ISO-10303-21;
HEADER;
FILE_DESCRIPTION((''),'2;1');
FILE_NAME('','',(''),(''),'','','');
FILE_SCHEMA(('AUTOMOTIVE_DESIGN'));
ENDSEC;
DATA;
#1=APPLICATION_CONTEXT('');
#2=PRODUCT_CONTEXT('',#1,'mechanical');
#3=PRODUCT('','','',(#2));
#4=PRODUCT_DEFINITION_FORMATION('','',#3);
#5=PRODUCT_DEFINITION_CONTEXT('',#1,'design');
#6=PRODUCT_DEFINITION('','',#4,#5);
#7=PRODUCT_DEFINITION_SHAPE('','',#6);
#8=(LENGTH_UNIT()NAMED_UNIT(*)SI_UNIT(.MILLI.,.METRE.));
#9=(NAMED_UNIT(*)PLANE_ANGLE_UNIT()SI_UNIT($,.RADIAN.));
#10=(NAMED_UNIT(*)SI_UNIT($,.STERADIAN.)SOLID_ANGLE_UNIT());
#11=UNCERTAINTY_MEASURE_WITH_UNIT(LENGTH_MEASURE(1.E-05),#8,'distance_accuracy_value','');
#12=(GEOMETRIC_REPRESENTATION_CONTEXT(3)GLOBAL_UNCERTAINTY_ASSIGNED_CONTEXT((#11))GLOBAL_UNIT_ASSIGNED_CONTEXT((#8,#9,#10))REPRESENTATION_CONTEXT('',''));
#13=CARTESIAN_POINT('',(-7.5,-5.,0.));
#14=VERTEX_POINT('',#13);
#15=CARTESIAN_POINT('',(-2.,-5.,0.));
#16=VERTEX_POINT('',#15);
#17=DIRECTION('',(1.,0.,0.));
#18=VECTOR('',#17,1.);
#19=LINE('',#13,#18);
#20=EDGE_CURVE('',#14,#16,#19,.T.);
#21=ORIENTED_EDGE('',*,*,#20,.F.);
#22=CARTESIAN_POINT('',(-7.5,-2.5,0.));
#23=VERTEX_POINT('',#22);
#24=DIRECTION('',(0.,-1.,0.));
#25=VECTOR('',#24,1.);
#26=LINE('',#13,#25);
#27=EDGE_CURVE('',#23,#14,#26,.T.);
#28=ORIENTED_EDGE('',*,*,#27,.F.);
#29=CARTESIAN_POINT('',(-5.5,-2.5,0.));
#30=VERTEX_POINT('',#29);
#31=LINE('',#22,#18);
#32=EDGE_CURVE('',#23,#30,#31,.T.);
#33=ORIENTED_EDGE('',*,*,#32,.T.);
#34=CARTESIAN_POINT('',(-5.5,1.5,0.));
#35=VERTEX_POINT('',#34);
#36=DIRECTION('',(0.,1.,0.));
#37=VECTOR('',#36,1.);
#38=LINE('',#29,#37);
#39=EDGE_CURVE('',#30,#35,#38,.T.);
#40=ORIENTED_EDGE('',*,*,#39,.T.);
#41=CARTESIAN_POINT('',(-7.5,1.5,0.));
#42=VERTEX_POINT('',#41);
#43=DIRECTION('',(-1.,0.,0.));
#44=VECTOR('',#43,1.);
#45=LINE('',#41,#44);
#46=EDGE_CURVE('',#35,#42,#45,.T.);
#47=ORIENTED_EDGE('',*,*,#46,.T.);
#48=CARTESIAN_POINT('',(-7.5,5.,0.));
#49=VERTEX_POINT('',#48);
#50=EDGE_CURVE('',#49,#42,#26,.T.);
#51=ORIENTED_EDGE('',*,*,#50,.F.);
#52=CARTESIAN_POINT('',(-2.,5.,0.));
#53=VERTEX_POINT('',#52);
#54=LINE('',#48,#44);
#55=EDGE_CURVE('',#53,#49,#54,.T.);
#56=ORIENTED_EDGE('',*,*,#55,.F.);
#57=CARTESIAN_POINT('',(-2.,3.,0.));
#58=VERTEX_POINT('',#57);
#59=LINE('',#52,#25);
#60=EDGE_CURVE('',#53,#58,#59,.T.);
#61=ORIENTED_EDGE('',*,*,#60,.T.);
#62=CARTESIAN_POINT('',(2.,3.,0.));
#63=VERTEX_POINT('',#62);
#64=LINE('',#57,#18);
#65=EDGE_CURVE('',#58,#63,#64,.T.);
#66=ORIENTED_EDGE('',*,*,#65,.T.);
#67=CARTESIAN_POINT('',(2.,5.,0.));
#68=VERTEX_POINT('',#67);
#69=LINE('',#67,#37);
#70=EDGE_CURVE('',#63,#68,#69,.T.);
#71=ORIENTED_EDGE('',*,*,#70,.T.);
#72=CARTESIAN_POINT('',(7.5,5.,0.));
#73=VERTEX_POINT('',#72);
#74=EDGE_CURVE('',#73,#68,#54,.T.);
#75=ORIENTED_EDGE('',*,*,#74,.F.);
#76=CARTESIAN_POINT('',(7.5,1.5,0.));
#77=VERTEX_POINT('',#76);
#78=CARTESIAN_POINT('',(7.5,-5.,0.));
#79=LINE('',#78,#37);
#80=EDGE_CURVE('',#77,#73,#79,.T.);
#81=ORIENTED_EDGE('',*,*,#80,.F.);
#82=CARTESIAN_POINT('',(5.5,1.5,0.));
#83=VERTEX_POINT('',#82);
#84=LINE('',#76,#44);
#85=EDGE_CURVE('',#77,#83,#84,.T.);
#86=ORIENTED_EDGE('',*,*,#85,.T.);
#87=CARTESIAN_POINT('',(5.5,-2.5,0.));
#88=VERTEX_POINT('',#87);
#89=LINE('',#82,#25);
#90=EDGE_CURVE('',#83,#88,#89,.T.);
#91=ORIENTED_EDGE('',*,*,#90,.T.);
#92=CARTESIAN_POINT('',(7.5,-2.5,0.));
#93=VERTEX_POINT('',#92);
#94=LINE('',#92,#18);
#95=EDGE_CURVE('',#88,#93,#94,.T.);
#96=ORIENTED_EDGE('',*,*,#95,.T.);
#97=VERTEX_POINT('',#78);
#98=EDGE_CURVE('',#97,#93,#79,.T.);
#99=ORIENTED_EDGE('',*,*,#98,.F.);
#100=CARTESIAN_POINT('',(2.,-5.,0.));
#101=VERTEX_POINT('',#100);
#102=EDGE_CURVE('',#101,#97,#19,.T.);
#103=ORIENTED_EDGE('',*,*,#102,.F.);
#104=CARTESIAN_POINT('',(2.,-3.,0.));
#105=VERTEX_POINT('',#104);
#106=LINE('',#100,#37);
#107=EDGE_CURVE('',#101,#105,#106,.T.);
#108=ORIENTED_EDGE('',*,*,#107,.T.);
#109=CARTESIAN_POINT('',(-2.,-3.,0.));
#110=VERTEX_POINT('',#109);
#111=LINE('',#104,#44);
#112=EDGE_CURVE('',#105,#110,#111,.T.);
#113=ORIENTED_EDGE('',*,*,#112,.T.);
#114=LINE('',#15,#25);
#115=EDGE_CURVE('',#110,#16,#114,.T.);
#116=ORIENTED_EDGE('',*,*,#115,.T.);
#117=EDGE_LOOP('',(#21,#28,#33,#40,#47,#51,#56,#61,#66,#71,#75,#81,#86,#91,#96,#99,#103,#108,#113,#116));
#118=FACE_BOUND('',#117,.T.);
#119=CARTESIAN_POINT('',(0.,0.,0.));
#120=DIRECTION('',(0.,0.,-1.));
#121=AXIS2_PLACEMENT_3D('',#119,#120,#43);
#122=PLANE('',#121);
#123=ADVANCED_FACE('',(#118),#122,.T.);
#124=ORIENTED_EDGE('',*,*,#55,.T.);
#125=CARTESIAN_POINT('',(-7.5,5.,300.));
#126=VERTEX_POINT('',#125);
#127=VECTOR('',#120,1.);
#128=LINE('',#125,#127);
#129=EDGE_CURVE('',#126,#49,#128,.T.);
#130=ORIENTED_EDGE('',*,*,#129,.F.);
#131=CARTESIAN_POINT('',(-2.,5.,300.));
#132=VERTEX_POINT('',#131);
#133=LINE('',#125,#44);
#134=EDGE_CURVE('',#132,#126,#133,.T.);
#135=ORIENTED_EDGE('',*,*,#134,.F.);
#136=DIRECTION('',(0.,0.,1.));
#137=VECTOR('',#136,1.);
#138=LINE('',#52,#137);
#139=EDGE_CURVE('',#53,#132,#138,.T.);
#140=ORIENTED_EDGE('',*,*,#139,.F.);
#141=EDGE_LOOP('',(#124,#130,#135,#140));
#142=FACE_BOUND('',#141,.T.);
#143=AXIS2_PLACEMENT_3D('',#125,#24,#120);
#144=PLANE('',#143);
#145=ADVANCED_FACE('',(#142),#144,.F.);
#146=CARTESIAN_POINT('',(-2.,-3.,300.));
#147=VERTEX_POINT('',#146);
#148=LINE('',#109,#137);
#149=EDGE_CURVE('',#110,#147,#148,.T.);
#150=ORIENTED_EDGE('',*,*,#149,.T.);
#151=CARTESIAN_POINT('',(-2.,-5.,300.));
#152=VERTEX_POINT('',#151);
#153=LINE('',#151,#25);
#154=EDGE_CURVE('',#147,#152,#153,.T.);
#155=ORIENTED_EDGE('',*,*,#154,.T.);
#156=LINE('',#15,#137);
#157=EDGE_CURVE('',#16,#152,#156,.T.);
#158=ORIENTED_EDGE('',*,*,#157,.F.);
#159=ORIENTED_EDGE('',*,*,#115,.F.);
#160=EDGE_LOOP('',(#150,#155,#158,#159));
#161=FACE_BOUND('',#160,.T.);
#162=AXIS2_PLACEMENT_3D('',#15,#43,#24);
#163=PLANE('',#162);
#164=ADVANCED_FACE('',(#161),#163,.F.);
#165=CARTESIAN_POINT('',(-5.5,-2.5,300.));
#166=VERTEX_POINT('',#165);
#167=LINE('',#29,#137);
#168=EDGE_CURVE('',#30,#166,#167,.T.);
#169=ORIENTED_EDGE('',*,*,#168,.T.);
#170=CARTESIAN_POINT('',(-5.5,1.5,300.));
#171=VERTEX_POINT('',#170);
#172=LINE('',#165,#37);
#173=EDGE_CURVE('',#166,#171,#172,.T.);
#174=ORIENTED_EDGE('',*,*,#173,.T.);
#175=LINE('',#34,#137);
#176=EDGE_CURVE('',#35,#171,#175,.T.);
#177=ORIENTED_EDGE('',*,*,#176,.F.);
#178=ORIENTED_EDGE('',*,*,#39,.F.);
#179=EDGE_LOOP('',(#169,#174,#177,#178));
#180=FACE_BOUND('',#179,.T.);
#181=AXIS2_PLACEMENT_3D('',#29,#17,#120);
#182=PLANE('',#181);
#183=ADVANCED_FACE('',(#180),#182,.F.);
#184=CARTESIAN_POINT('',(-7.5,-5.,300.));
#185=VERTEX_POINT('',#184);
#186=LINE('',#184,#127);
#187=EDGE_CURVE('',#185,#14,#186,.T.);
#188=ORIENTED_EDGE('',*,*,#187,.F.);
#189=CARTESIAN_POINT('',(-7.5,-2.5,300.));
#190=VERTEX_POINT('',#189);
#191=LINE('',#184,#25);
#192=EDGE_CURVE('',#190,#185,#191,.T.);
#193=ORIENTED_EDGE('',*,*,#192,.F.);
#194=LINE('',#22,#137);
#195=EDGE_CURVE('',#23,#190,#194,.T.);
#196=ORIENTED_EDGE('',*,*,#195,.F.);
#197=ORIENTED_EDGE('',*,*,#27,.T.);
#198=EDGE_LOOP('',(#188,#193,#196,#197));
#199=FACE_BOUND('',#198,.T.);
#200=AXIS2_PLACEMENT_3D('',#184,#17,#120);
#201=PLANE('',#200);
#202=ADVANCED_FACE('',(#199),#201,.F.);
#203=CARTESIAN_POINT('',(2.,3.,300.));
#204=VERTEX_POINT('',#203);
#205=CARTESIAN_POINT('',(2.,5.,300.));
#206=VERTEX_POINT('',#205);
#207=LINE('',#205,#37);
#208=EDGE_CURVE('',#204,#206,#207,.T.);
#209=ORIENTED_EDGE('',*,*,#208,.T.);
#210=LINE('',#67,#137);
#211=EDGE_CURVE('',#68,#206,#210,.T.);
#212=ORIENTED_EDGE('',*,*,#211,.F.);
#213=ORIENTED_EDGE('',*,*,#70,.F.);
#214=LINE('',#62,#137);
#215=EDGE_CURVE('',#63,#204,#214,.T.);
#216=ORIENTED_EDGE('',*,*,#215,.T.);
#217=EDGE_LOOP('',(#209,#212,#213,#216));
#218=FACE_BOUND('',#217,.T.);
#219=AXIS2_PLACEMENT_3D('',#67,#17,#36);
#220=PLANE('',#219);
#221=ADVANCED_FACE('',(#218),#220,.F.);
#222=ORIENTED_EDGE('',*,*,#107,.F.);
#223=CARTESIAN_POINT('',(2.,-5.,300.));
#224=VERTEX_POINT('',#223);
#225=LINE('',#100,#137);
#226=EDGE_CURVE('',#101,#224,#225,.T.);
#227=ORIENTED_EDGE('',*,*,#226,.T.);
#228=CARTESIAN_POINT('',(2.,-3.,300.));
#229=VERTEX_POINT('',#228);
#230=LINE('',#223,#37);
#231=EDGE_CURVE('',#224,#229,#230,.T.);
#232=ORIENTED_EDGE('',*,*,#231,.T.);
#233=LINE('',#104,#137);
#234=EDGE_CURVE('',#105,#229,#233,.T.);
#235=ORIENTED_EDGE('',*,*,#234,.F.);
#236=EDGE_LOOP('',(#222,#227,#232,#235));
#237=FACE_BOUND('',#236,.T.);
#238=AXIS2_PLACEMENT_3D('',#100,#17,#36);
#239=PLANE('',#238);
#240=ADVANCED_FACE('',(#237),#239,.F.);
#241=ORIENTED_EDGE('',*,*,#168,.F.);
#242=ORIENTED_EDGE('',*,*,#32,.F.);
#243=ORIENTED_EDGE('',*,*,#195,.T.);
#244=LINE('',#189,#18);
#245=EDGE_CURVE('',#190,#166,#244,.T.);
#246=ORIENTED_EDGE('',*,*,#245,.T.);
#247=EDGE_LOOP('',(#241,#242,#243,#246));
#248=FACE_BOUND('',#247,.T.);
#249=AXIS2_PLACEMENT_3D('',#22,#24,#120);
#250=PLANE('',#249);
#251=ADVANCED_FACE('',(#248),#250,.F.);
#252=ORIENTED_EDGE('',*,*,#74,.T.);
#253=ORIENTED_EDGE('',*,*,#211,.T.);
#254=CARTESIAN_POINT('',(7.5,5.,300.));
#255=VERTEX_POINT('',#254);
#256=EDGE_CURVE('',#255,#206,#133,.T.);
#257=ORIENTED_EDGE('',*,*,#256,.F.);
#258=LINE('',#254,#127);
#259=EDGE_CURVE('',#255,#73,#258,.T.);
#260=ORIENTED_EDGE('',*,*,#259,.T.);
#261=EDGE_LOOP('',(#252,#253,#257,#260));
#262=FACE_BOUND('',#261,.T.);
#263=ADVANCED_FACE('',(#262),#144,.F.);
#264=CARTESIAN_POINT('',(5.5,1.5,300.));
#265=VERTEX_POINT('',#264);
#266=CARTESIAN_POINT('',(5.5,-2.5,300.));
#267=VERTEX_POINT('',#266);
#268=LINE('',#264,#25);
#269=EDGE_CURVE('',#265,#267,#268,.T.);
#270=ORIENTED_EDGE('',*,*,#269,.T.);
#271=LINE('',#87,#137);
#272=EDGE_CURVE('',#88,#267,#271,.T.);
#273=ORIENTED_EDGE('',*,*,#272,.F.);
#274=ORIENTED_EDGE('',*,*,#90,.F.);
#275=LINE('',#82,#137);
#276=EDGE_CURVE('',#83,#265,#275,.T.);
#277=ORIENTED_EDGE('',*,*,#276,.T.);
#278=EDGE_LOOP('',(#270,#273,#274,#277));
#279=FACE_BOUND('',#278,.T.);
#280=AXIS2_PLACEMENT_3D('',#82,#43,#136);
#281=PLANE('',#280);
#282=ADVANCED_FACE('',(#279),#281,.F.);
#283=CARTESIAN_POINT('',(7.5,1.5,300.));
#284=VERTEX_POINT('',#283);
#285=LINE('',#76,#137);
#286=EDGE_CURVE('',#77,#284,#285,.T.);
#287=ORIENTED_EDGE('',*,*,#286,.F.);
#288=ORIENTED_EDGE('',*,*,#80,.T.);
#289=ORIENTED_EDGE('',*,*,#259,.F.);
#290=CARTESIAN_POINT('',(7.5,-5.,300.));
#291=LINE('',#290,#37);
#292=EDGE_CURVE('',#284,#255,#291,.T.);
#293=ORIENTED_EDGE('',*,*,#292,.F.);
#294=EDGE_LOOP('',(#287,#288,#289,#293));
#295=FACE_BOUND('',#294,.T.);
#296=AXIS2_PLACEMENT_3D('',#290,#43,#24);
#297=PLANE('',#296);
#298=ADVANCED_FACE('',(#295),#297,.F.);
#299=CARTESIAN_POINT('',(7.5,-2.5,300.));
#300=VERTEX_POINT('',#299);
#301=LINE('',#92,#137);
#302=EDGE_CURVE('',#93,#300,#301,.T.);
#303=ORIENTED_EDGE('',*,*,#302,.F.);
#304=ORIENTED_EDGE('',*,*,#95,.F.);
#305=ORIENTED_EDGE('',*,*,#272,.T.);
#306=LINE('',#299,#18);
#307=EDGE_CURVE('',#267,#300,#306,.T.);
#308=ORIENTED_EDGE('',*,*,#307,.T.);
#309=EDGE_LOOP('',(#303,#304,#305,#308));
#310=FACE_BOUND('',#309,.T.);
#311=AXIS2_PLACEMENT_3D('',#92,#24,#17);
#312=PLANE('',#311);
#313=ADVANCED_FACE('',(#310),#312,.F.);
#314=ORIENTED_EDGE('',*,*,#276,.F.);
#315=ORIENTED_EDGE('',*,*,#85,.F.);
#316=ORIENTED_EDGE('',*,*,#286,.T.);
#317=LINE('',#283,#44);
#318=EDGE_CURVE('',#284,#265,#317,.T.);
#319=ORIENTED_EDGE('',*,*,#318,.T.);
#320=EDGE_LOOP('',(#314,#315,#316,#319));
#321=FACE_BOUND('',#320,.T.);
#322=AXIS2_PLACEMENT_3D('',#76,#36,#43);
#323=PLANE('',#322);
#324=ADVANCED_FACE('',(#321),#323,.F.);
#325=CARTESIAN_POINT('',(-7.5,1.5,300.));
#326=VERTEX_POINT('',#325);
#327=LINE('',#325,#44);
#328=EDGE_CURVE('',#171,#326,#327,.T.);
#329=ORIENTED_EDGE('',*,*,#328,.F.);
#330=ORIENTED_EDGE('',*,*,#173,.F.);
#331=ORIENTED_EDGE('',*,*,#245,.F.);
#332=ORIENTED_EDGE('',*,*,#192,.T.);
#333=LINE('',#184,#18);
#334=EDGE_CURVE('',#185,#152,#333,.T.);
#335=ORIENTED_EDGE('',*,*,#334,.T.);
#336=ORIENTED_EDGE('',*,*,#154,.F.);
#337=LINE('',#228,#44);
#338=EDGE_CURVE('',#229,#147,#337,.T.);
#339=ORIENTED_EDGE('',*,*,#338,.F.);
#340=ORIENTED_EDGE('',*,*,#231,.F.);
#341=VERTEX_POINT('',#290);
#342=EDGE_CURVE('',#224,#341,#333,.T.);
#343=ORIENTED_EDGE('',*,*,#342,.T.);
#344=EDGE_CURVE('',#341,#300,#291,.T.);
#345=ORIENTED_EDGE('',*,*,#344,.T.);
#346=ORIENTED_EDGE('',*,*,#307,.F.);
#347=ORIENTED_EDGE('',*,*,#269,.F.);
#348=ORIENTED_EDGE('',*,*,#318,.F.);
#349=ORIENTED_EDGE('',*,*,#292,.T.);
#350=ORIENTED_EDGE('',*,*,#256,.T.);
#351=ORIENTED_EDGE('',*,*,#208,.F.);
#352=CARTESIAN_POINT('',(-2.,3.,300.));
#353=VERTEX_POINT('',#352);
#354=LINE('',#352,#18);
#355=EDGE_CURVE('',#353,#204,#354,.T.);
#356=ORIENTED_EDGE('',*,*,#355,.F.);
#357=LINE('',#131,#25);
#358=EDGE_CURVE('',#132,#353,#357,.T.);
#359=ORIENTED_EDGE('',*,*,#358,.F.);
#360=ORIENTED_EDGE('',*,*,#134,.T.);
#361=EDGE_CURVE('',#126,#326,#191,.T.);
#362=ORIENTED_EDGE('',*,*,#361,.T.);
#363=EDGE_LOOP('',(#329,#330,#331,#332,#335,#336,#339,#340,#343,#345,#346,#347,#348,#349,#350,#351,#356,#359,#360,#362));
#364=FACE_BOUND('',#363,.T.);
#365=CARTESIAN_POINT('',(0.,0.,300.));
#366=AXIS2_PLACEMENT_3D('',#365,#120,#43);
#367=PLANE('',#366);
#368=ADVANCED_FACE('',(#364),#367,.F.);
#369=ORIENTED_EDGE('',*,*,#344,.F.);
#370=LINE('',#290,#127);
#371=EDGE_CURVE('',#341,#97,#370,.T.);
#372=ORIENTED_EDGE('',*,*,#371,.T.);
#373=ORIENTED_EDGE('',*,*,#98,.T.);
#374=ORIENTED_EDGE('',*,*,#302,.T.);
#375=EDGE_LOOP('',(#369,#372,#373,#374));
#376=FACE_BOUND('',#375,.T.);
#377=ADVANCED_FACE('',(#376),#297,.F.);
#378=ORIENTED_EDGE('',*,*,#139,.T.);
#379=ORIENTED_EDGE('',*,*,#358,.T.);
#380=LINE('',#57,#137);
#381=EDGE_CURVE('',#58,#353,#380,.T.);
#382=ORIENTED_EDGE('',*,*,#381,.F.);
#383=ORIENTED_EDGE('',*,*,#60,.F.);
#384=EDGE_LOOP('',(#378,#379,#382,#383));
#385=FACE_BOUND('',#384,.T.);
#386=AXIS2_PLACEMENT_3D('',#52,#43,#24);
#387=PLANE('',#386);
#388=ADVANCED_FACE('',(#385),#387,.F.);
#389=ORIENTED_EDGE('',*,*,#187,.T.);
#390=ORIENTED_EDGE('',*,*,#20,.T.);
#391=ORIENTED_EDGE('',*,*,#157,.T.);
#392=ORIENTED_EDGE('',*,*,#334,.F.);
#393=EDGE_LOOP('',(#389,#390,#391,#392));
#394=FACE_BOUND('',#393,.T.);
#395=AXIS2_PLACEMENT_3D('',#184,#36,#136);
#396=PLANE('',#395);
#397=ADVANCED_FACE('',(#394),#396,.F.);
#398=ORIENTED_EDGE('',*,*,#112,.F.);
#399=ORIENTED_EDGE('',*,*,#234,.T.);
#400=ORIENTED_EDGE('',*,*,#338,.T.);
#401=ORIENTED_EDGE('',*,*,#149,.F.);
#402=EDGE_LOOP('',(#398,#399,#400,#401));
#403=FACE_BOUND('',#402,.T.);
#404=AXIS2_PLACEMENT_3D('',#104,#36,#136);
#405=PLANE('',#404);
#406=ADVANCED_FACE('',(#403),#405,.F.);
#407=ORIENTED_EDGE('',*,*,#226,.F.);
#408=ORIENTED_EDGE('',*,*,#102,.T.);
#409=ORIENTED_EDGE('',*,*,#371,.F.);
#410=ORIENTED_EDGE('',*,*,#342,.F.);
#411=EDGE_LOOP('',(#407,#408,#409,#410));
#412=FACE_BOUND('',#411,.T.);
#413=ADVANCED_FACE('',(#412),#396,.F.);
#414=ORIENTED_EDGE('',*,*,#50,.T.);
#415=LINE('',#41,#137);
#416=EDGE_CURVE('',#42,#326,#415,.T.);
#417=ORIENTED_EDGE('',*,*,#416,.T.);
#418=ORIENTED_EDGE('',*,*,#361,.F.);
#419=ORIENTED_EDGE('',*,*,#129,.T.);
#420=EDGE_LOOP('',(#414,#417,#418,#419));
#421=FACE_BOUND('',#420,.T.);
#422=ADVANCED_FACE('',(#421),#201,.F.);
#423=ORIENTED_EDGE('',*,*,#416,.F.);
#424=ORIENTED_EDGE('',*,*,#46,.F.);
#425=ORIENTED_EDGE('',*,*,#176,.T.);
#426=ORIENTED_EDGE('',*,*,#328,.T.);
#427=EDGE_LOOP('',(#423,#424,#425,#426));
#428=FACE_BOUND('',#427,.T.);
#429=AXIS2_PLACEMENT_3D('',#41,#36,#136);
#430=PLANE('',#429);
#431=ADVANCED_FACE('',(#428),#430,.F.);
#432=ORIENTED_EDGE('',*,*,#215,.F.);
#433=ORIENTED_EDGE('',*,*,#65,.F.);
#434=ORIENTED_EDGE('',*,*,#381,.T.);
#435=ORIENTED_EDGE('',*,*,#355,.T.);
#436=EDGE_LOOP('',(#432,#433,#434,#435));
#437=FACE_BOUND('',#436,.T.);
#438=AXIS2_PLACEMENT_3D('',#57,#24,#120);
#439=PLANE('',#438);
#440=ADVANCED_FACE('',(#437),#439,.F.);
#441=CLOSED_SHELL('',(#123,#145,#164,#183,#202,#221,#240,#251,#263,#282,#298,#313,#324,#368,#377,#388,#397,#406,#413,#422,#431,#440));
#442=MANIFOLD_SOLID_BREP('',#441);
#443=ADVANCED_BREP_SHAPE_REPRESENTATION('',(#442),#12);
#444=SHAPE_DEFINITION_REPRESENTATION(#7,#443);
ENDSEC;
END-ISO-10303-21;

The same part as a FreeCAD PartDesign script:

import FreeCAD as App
import Part
import Sketcher


def add_polygon(sketch, points):
    """Adds a closed chain of lines whose ends are joined by coincident constraints."""
    first, n = sketch.GeometryCount, len(points)
    for a, b in zip(points, points[1:] + points[:1]):
        sketch.addGeometry(Part.LineSegment(App.Vector(*a, 0), App.Vector(*b, 0)), False)
    for i in range(n):
        sketch.addConstraint(Sketcher.Constraint("Coincident", first + i, 2, first + (i + 1) % n, 1))

doc = App.newDocument("Part")
body = doc.addObject("PartDesign::Body", "Body")

# Sketch on XY plane
sketch1 = body.newObject("Sketcher::SketchObject", "Sketch")
sketch1.AttachmentSupport = (doc.getObject("XY_Plane"), [""])
sketch1.MapMode = "FlatFace"
add_polygon(sketch1, [(-8, 5), (-8, -5), (8, -5), (8, 5)])  # lines 0-3
sketch1.addConstraint([
    Sketcher.Constraint("Vertical", 0),
    Sketcher.Constraint("Horizontal", 1),
    Sketcher.Constraint("Vertical", 2),
    Sketcher.Constraint("Horizontal", 3),
    Sketcher.Constraint("Symmetric", 0, 2, 2, 2, -1, 1),
    Sketcher.Constraint("DistanceX", 1, 1, 1, 2, 15.0),
    Sketcher.Constraint("DistanceY", 0, 2, 0, 1, 10.0),
])
pad1 = body.newObject("PartDesign::Pad", "Pad")
pad1.Profile = sketch1
pad1.Length = 300

# Sketch on XY plane
sketch2 = body.newObject("Sketcher::SketchObject", "Sketch001")
sketch2.AttachmentSupport = (doc.getObject("XY_Plane"), [""])
sketch2.MapMode = "FlatFace"
sketch2.AttachmentOffset = App.Placement(App.Vector(0, 0, 300), App.Rotation())
add_polygon(sketch2, [(-2, 5), (-2, 3), (2, 3), (2, 5)])  # lines 0-3
add_polygon(sketch2, [(5.5, 1.5), (5.5, -2.5), (7.5, -2.5), (7.5, 1.5)])  # lines 4-7
add_polygon(sketch2, [(-2, -3), (-2, -5), (2, -5), (2, -3)])  # lines 8-11
add_polygon(sketch2, [(-7.5, 1.5), (-7.5, -2.5), (-5.5, -2.5), (-5.5, 1.5)])  # lines 12-15
sketch2.addConstraint([
    Sketcher.Constraint("Vertical", 0),
    Sketcher.Constraint("Horizontal", 1),
    Sketcher.Constraint("Vertical", 2),
    Sketcher.Constraint("Horizontal", 3),
    Sketcher.Constraint("Vertical", 4),
    Sketcher.Constraint("Horizontal", 5),
    Sketcher.Constraint("Vertical", 6),
    Sketcher.Constraint("Horizontal", 7),
    Sketcher.Constraint("Vertical", 8),
    Sketcher.Constraint("Horizontal", 9),
    Sketcher.Constraint("Vertical", 10),
    Sketcher.Constraint("Horizontal", 11),
    Sketcher.Constraint("Vertical", 12),
    Sketcher.Constraint("Horizontal", 13),
    Sketcher.Constraint("Vertical", 14),
    Sketcher.Constraint("Horizontal", 15),
    Sketcher.Constraint("Symmetric", 2, 2, 8, 2, -1, 1),
    Sketcher.Constraint("Symmetric", 0, 2, 10, 2, -1, 1),
    Sketcher.Constraint("Symmetric", 5, 2, 12, 2, -2),
    Sketcher.Constraint("Symmetric", 7, 2, 14, 2, -2),
    Sketcher.Constraint("Vertical", 3, 2, 8, 2),
    Sketcher.Constraint("Equal", 15, 0),
    Sketcher.Constraint("Equal", 11, 4),
    Sketcher.Constraint("DistanceX", 1, 1, 1, 2, 4.0),
    Sketcher.Constraint("DistanceX", 5, 1, 5, 2, 2.0),
    Sketcher.Constraint("DistanceY", -1, 1, 0, 2, 3.0),
    Sketcher.Constraint("DistanceX", -1, 1, 4, 2, 5.5),
    Sketcher.Constraint("DistanceY", 4, 2, -1, 1, 2.5),
])
pocket1 = body.newObject("PartDesign::Pocket", "Pocket")
pocket1.Profile = sketch2
pocket1.Type = "ThroughAll"

doc.recompute()
